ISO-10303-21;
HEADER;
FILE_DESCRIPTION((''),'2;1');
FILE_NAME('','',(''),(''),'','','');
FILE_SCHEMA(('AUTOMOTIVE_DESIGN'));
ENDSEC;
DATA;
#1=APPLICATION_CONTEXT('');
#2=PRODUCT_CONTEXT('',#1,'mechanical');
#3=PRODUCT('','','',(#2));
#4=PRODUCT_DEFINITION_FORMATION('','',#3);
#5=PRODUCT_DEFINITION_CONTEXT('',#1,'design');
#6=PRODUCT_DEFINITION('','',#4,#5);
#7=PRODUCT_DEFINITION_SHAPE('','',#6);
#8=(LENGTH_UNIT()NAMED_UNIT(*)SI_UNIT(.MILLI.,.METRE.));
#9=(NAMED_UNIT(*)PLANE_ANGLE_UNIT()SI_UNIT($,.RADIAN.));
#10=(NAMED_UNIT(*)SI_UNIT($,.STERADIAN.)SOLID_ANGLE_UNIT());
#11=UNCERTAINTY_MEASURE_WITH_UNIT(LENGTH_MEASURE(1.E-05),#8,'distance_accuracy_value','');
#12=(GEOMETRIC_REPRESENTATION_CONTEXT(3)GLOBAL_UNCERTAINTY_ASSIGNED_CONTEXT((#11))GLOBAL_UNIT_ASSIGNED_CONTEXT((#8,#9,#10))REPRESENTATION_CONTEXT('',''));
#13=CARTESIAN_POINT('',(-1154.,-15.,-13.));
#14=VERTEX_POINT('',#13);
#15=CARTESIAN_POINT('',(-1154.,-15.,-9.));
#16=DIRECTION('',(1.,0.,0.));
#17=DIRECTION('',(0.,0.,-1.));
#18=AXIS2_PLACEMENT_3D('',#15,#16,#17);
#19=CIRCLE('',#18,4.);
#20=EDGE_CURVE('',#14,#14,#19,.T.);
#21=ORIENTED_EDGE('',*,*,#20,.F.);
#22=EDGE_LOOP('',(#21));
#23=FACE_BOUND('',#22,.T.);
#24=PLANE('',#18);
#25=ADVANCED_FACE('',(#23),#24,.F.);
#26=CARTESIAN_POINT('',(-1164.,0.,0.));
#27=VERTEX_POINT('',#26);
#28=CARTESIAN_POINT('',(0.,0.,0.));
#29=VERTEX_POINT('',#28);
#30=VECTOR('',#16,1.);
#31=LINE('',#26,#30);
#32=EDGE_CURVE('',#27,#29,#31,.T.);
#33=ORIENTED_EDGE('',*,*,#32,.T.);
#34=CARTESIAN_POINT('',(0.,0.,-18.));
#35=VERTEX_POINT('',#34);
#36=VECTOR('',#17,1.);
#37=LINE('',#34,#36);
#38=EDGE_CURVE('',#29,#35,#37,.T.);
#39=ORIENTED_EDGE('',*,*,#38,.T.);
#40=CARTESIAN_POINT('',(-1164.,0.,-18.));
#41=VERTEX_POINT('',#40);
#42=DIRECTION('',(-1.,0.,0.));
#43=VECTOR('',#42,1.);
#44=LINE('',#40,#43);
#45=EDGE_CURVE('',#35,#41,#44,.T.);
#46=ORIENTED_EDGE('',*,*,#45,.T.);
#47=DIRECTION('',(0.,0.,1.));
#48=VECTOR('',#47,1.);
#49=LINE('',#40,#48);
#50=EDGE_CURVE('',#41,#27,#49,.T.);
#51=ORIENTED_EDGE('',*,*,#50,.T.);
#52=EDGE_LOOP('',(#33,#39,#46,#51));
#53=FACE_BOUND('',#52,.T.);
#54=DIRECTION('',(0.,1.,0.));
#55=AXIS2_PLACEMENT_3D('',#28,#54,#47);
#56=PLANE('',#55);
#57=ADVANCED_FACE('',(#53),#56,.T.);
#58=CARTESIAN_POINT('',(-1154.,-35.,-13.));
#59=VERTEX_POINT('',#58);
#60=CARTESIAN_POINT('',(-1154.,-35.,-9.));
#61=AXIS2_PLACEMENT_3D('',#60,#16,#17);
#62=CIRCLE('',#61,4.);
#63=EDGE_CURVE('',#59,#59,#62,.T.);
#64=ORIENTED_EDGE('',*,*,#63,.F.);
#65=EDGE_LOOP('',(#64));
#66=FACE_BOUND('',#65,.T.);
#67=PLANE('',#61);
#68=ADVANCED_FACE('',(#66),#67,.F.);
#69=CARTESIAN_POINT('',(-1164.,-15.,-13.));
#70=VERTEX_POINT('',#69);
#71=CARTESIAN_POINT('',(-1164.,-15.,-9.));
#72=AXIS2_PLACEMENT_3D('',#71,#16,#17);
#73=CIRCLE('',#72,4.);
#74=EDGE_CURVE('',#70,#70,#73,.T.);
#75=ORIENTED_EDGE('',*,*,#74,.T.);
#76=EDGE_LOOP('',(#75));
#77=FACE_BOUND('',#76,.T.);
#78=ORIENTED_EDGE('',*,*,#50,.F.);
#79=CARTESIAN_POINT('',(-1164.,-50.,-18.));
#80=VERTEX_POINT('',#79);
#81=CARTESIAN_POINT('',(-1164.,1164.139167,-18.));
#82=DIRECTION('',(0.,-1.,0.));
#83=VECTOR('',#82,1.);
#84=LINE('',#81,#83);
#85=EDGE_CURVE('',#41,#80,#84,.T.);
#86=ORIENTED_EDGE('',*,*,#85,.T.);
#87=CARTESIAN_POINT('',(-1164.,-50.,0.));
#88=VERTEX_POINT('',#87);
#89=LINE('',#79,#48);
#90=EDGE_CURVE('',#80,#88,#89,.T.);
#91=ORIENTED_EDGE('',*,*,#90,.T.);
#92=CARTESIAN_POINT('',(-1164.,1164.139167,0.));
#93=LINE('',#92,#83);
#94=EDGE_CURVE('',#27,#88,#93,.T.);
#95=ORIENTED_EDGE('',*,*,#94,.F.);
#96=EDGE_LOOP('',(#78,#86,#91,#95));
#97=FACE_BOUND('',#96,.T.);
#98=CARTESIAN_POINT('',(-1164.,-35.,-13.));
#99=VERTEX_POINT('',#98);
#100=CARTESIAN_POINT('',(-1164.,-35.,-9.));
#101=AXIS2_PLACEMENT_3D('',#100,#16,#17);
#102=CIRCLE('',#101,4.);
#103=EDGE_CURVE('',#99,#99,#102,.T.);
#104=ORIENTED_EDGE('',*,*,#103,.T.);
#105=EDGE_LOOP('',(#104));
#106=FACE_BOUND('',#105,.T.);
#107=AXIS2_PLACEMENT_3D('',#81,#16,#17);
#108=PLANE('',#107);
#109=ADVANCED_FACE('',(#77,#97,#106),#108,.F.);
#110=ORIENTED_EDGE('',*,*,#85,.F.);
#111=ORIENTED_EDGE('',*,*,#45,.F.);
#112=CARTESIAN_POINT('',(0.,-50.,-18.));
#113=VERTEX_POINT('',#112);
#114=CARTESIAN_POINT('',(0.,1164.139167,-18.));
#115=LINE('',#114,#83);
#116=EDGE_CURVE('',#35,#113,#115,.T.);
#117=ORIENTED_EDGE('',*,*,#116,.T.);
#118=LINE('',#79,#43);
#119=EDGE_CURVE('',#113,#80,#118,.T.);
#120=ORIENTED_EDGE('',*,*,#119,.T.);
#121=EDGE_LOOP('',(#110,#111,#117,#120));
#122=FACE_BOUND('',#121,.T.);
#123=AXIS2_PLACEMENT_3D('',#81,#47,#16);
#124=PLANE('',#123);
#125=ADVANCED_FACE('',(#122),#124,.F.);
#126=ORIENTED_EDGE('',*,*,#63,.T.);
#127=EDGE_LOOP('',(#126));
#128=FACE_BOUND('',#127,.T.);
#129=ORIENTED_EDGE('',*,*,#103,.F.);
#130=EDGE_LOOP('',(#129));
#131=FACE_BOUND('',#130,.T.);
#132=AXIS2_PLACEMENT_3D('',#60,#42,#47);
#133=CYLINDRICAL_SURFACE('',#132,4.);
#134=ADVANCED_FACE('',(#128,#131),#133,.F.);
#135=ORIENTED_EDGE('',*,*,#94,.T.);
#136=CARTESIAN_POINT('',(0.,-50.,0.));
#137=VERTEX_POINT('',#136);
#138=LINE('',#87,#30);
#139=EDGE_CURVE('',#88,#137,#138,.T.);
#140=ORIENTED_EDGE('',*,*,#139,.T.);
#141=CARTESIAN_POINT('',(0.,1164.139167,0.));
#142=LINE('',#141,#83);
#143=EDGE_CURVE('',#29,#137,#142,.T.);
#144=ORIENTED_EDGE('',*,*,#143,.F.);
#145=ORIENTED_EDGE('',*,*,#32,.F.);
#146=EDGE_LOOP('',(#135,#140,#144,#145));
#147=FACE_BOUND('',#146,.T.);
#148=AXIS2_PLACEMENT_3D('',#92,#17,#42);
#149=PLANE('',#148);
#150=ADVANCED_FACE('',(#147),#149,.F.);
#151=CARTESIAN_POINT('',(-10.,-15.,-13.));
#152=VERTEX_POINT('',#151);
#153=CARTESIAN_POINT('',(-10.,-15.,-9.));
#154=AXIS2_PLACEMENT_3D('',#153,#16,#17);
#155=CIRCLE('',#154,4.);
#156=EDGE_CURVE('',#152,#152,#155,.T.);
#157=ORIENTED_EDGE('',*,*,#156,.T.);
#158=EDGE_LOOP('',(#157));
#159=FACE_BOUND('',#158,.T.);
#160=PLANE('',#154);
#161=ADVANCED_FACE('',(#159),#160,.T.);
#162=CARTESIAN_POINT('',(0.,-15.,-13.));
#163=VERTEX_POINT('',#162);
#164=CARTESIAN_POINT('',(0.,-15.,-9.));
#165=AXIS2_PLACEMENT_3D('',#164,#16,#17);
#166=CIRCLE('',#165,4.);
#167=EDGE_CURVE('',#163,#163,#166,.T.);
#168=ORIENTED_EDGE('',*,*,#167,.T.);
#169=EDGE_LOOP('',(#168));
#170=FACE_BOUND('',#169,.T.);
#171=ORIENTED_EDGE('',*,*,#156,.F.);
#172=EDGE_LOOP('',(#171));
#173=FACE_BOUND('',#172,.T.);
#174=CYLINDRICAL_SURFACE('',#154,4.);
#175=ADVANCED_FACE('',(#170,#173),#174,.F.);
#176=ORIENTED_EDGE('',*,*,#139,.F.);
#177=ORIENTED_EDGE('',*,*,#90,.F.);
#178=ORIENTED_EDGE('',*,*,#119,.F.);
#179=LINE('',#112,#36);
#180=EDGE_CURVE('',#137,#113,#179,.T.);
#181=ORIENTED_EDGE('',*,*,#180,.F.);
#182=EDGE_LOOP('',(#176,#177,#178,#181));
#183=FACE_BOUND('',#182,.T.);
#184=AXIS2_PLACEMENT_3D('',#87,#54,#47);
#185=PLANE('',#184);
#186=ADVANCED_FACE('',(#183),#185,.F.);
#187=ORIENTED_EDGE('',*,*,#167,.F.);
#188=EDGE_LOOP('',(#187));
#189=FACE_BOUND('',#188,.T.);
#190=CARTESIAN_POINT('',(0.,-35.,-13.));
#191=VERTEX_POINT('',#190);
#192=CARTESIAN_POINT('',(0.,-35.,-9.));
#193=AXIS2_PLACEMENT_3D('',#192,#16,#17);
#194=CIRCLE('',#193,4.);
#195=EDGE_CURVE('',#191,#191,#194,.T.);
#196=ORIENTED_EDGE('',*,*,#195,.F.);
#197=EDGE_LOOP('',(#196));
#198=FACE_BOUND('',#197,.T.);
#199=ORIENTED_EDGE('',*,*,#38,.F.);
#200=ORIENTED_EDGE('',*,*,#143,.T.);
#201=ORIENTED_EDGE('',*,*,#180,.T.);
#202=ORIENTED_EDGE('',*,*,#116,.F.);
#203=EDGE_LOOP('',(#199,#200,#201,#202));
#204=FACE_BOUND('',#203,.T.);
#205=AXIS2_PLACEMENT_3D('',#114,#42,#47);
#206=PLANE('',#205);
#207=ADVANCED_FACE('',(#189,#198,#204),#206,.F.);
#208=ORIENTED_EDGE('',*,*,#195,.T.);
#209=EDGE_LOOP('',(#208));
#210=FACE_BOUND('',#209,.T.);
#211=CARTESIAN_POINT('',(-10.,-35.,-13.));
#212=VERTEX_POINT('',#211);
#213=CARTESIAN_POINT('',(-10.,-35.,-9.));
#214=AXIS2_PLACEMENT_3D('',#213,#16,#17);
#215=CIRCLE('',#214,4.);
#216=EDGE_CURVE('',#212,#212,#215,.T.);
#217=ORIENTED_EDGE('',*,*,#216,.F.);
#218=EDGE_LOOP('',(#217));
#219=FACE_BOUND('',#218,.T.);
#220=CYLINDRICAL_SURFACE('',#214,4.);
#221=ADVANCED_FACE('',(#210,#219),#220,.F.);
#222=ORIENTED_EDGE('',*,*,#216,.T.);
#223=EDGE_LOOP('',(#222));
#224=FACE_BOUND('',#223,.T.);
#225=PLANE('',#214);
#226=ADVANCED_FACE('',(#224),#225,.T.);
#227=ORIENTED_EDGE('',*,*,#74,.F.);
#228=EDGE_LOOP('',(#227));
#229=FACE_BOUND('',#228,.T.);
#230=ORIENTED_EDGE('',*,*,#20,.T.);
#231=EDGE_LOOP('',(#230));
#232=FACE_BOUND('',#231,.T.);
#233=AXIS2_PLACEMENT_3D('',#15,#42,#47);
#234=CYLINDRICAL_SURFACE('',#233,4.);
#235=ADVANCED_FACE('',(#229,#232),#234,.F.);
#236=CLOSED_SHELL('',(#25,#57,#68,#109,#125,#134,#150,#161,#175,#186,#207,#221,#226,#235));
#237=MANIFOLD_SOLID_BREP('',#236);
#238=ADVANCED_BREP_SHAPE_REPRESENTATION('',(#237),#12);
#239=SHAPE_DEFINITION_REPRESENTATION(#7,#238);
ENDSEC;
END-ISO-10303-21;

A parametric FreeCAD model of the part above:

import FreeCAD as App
import Part
import Sketcher

V = App.Vector

doc = App.newDocument("Part")
body = doc.addObject("PartDesign::Body", "Body")

sketch1 = body.newObject("Sketcher::SketchObject", "Sketch")
sketch1.AttachmentSupport = (doc.getObject("XZ_Plane"), [""])
sketch1.MapMode = "FlatFace"
sketch1.AttachmentOffset = App.Placement(V(0, 0, 50), App.Rotation())
sketch1.addGeometry([
    Part.LineSegment(V(0, 0, 0), V(0, -18, 0)),
    Part.LineSegment(V(0, -18, 0), V(-1164, -18, 0)),
    Part.LineSegment(V(-1164, -18, 0), V(-1164, 0, 0)),
    Part.LineSegment(V(-1164, 0, 0), V(0, 0, 0)),
], False)
sketch1.addConstraint([
    Sketcher.Constraint("Coincident", 0, 2, 1, 1),
    Sketcher.Constraint("Coincident", 1, 2, 2, 1),
    Sketcher.Constraint("Coincident", 2, 2, 3, 1),
    Sketcher.Constraint("Coincident", 3, 2, 0, 1),
    Sketcher.Constraint("Vertical", 0),
    Sketcher.Constraint("Horizontal", 1),
    Sketcher.Constraint("Vertical", 2),
    Sketcher.Constraint("Horizontal", 3),
    Sketcher.Constraint("Coincident", 3, 2, -1, 1),
    Sketcher.Constraint("DistanceX", 1, 2, 1, 1, 1164.0),
    Sketcher.Constraint("DistanceY", 0, 2, 0, 1, 18.0),
])
pad1 = body.newObject("PartDesign::Pad", "Pad")
pad1.Profile = sketch1
pad1.Length = 50
pad1.Reversed = True

sketch2 = body.newObject("Sketcher::SketchObject", "Sketch001")
sketch2.AttachmentSupport = (doc.getObject("YZ_Plane"), [""])
sketch2.MapMode = "FlatFace"
sketch2.addGeometry([
    Part.Circle(V(-15, -9, 0), V(0, 0, 1), 4),
    Part.Circle(V(-35, -9, 0), V(0, 0, 1), 4),
], False)
sketch2.addConstraint([
    Sketcher.Constraint("Equal", 0, 1),
    Sketcher.Constraint("Horizontal", 0, 3, 1, 3),
    Sketcher.Constraint("Diameter", 0, 8.0),
    Sketcher.Constraint("DistanceX", 0, 3, -1, 1, 15.0),
    Sketcher.Constraint("DistanceY", 0, 3, -1, 1, 9.0),
    Sketcher.Constraint("DistanceX", 1, 3, -1, 1, 35.0),
])
pocket1 = body.newObject("PartDesign::Pocket", "Pocket")
pocket1.Profile = sketch2
pocket1.Length = 10

sketch3 = body.newObject("Sketcher::SketchObject", "Sketch002")
sketch3.AttachmentSupport = (doc.getObject("YZ_Plane"), [""])
sketch3.MapMode = "FlatFace"
sketch3.AttachmentOffset = App.Placement(V(0, 0, -1154), App.Rotation())
sketch3.addGeometry([
    Part.Circle(V(-35, -9, 0), V(0, 0, 1), 4),
    Part.Circle(V(-15, -9, 0), V(0, 0, 1), 4),
], False)
sketch3.addConstraint([
    Sketcher.Constraint("Equal", 0, 1),
    Sketcher.Constraint("Horizontal", 0, 3, 1, 3),
    Sketcher.Constraint("Diameter", 0, 8.0),
    Sketcher.Constraint("DistanceX", 0, 3, -1, 1, 35.0),
    Sketcher.Constraint("DistanceY", 0, 3, -1, 1, 9.0),
    Sketcher.Constraint("DistanceX", 1, 3, -1, 1, 15.0),
])
pocket2 = body.newObject("PartDesign::Pocket", "Pocket001")
pocket2.Profile = sketch3
pocket2.Length = 10

doc.recompute()
